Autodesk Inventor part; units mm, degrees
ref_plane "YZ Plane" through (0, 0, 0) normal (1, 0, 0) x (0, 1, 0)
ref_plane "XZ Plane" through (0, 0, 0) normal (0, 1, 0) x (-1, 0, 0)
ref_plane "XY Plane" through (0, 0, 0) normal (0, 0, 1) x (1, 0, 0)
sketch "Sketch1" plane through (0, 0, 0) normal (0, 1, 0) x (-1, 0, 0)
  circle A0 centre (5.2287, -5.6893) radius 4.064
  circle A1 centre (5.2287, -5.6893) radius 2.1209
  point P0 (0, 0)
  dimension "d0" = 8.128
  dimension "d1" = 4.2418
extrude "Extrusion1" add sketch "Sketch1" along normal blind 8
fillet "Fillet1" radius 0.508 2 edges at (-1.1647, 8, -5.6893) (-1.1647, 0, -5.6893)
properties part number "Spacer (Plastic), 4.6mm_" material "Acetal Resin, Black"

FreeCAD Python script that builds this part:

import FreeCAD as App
import Part
import Sketcher
from FreeCAD import Vector
Q = App.Units.Quantity


def edges_at(feature, points):
    """Names of the edges that pass closest to the given points."""
    edges = feature.Shape.Edges
    near = lambda p: min(range(len(edges)), key=lambda i: edges[i].distToShape(Part.Vertex(*p))[0])
    return sorted({f"Edge{near(p) + 1}" for p in points})

doc = App.newDocument("Part")
body = doc.addObject("PartDesign::Body", "Body")

# Sketch on XZ plane
sketch1 = body.newObject("Sketcher::SketchObject", "Sketch")
sketch1.AttachmentSupport = (doc.getObject("XZ_Plane"), [""])
sketch1.MapMode = "FlatFace"
sketch1.addGeometry([
    Part.Circle(Vector(-5.2, -5.7, 0), Vector(0, 0, 1), 4.1),
    Part.Circle(Vector(-5.2, -5.7, 0), Vector(0, 0, 1), 2.1),
], False)
sketch1.addConstraint([
    Sketcher.Constraint("Coincident", 1, 3, 0, 3),
    Sketcher.Constraint("Diameter", 0, Q("0.32 in")),
    Sketcher.Constraint("Diameter", 1, Q("0.167 in")),
    Sketcher.Constraint("DistanceY", 0, 3, -1, 1, Q("0.224 in")),
    Sketcher.Constraint("DistanceX", 0, 3, -1, 1, Q("5.2287 mm")),
])
pad1 = body.newObject("PartDesign::Pad", "Pad")
pad1.Profile = sketch1
pad1.Length = 8
pad1.Reversed = True
doc.recompute()

fillet = body.newObject("PartDesign::Fillet", "Fillet")
fillet.Base = (pad1, edges_at(pad1, [(-1.165, 8, -5.689), (-1.165, 0, -5.689)]))
fillet.Radius = Q("0.02 in")

doc.recompute()
